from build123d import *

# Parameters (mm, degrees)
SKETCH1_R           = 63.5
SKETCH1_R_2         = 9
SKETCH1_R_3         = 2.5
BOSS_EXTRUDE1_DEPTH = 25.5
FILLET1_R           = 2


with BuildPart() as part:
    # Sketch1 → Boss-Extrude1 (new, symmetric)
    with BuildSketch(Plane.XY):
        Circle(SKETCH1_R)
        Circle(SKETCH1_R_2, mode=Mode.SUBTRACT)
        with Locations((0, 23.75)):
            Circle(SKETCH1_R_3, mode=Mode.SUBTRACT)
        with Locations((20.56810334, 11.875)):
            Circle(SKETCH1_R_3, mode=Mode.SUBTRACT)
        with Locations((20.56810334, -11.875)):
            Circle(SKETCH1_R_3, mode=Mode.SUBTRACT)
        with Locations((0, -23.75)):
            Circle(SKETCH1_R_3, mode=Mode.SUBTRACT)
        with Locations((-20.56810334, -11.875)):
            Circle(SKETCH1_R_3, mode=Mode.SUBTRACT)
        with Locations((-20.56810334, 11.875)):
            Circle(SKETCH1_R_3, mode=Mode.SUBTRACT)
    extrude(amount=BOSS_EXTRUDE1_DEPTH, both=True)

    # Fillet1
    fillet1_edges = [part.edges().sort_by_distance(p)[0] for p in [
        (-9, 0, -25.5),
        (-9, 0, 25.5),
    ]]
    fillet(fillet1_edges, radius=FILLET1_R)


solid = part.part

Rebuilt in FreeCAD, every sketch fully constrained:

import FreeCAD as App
import Part
import Sketcher


def edges_at(feature, points):
    """Names of the edges that pass closest to the given points."""
    edges = feature.Shape.Edges
    near = lambda p: min(range(len(edges)), key=lambda i: edges[i].distToShape(Part.Vertex(*p))[0])
    return sorted({f"Edge{near(p) + 1}" for p in points})

doc = App.newDocument("Part")
body = doc.addObject("PartDesign::Body", "Body")

sketch1 = doc.addObject("Sketcher::SketchObject", "Sketch")
body.addObject(sketch1)
sketch1.AttachmentSupport = (doc.XY_Plane, [""])
sketch1.MapMode = "FlatFace"
sketch1.addGeometry(Part.Circle(App.Vector(0, 0, 0), App.Vector(0, 0, 1), 63.5), False)
sketch1.addGeometry(Part.Circle(App.Vector(-20.6, -11.9, 0), App.Vector(0, 0, 1), 2.5), False)
sketch1.addGeometry(Part.Circle(App.Vector(0, -23.8, 0), App.Vector(0, 0, 1), 2.5), False)
sketch1.addGeometry(Part.Circle(App.Vector(20.6, -11.9, 0), App.Vector(0, 0, 1), 2.5), False)
sketch1.addGeometry(Part.Circle(App.Vector(-20.6, 11.9, 0), App.Vector(0, 0, 1), 2.5), False)
sketch1.addGeometry(Part.Circle(App.Vector(0, 0, 0), App.Vector(0, 0, 1), 9), False)
sketch1.addGeometry(Part.Circle(App.Vector(20.6, 11.9, 0), App.Vector(0, 0, 1), 2.5), False)
sketch1.addGeometry(Part.Circle(App.Vector(0, 23.8, 0), App.Vector(0, 0, 1), 2.5), False)
sketch1.addConstraint(Sketcher.Constraint("Coincident", 0, 3, -1, 1))
sketch1.addConstraint(Sketcher.Constraint("Coincident", 5, 3, -1, 1))
sketch1.addConstraint(Sketcher.Constraint("Equal", 1, 2))
sketch1.addConstraint(Sketcher.Constraint("Equal", 2, 3))
sketch1.addConstraint(Sketcher.Constraint("Equal", 3, 4))
sketch1.addConstraint(Sketcher.Constraint("Equal", 4, 6))
sketch1.addConstraint(Sketcher.Constraint("Equal", 6, 7))
sketch1.addConstraint(Sketcher.Constraint("Symmetric", 3, 3, 4, 3, -1, 1))
sketch1.addConstraint(Sketcher.Constraint("Symmetric", 1, 3, 6, 3, -1, 1))
sketch1.addConstraint(Sketcher.Constraint("Symmetric", 2, 3, 7, 3, -1, 1))
sketch1.addConstraint(Sketcher.Constraint("Symmetric", 1, 3, 3, 3, -2))
sketch1.addConstraint(Sketcher.Constraint("PointOnObject", 2, 3, -2))
sketch1.addConstraint(Sketcher.Constraint("Diameter", 0, 127.0))
sketch1.addConstraint(Sketcher.Constraint("Diameter", 1, 5.0))
sketch1.addConstraint(Sketcher.Constraint("Diameter", 5, 18.0))
sketch1.addConstraint(Sketcher.Constraint("DistanceY", 2, 3, -1, 1, 23.75))
sketch1.addConstraint(Sketcher.Constraint("DistanceY", 1, 3, 4, 3, 23.75))
sketch1.addConstraint(Sketcher.Constraint("DistanceX", 1, 3, -1, 1, 20.568103))
pad1 = doc.addObject("PartDesign::Pad", "Pad")
body.addObject(pad1)
pad1.Profile = sketch1
pad1.Length = 51
pad1.Midplane = True
doc.recompute()

fillet = doc.addObject("PartDesign::Fillet", "Fillet")
body.addObject(fillet)
fillet.Base = (pad1, edges_at(pad1, [(-9, 0, -25.5), (-9, 0, 25.5)]))
fillet.Radius = 2

doc.recompute()
